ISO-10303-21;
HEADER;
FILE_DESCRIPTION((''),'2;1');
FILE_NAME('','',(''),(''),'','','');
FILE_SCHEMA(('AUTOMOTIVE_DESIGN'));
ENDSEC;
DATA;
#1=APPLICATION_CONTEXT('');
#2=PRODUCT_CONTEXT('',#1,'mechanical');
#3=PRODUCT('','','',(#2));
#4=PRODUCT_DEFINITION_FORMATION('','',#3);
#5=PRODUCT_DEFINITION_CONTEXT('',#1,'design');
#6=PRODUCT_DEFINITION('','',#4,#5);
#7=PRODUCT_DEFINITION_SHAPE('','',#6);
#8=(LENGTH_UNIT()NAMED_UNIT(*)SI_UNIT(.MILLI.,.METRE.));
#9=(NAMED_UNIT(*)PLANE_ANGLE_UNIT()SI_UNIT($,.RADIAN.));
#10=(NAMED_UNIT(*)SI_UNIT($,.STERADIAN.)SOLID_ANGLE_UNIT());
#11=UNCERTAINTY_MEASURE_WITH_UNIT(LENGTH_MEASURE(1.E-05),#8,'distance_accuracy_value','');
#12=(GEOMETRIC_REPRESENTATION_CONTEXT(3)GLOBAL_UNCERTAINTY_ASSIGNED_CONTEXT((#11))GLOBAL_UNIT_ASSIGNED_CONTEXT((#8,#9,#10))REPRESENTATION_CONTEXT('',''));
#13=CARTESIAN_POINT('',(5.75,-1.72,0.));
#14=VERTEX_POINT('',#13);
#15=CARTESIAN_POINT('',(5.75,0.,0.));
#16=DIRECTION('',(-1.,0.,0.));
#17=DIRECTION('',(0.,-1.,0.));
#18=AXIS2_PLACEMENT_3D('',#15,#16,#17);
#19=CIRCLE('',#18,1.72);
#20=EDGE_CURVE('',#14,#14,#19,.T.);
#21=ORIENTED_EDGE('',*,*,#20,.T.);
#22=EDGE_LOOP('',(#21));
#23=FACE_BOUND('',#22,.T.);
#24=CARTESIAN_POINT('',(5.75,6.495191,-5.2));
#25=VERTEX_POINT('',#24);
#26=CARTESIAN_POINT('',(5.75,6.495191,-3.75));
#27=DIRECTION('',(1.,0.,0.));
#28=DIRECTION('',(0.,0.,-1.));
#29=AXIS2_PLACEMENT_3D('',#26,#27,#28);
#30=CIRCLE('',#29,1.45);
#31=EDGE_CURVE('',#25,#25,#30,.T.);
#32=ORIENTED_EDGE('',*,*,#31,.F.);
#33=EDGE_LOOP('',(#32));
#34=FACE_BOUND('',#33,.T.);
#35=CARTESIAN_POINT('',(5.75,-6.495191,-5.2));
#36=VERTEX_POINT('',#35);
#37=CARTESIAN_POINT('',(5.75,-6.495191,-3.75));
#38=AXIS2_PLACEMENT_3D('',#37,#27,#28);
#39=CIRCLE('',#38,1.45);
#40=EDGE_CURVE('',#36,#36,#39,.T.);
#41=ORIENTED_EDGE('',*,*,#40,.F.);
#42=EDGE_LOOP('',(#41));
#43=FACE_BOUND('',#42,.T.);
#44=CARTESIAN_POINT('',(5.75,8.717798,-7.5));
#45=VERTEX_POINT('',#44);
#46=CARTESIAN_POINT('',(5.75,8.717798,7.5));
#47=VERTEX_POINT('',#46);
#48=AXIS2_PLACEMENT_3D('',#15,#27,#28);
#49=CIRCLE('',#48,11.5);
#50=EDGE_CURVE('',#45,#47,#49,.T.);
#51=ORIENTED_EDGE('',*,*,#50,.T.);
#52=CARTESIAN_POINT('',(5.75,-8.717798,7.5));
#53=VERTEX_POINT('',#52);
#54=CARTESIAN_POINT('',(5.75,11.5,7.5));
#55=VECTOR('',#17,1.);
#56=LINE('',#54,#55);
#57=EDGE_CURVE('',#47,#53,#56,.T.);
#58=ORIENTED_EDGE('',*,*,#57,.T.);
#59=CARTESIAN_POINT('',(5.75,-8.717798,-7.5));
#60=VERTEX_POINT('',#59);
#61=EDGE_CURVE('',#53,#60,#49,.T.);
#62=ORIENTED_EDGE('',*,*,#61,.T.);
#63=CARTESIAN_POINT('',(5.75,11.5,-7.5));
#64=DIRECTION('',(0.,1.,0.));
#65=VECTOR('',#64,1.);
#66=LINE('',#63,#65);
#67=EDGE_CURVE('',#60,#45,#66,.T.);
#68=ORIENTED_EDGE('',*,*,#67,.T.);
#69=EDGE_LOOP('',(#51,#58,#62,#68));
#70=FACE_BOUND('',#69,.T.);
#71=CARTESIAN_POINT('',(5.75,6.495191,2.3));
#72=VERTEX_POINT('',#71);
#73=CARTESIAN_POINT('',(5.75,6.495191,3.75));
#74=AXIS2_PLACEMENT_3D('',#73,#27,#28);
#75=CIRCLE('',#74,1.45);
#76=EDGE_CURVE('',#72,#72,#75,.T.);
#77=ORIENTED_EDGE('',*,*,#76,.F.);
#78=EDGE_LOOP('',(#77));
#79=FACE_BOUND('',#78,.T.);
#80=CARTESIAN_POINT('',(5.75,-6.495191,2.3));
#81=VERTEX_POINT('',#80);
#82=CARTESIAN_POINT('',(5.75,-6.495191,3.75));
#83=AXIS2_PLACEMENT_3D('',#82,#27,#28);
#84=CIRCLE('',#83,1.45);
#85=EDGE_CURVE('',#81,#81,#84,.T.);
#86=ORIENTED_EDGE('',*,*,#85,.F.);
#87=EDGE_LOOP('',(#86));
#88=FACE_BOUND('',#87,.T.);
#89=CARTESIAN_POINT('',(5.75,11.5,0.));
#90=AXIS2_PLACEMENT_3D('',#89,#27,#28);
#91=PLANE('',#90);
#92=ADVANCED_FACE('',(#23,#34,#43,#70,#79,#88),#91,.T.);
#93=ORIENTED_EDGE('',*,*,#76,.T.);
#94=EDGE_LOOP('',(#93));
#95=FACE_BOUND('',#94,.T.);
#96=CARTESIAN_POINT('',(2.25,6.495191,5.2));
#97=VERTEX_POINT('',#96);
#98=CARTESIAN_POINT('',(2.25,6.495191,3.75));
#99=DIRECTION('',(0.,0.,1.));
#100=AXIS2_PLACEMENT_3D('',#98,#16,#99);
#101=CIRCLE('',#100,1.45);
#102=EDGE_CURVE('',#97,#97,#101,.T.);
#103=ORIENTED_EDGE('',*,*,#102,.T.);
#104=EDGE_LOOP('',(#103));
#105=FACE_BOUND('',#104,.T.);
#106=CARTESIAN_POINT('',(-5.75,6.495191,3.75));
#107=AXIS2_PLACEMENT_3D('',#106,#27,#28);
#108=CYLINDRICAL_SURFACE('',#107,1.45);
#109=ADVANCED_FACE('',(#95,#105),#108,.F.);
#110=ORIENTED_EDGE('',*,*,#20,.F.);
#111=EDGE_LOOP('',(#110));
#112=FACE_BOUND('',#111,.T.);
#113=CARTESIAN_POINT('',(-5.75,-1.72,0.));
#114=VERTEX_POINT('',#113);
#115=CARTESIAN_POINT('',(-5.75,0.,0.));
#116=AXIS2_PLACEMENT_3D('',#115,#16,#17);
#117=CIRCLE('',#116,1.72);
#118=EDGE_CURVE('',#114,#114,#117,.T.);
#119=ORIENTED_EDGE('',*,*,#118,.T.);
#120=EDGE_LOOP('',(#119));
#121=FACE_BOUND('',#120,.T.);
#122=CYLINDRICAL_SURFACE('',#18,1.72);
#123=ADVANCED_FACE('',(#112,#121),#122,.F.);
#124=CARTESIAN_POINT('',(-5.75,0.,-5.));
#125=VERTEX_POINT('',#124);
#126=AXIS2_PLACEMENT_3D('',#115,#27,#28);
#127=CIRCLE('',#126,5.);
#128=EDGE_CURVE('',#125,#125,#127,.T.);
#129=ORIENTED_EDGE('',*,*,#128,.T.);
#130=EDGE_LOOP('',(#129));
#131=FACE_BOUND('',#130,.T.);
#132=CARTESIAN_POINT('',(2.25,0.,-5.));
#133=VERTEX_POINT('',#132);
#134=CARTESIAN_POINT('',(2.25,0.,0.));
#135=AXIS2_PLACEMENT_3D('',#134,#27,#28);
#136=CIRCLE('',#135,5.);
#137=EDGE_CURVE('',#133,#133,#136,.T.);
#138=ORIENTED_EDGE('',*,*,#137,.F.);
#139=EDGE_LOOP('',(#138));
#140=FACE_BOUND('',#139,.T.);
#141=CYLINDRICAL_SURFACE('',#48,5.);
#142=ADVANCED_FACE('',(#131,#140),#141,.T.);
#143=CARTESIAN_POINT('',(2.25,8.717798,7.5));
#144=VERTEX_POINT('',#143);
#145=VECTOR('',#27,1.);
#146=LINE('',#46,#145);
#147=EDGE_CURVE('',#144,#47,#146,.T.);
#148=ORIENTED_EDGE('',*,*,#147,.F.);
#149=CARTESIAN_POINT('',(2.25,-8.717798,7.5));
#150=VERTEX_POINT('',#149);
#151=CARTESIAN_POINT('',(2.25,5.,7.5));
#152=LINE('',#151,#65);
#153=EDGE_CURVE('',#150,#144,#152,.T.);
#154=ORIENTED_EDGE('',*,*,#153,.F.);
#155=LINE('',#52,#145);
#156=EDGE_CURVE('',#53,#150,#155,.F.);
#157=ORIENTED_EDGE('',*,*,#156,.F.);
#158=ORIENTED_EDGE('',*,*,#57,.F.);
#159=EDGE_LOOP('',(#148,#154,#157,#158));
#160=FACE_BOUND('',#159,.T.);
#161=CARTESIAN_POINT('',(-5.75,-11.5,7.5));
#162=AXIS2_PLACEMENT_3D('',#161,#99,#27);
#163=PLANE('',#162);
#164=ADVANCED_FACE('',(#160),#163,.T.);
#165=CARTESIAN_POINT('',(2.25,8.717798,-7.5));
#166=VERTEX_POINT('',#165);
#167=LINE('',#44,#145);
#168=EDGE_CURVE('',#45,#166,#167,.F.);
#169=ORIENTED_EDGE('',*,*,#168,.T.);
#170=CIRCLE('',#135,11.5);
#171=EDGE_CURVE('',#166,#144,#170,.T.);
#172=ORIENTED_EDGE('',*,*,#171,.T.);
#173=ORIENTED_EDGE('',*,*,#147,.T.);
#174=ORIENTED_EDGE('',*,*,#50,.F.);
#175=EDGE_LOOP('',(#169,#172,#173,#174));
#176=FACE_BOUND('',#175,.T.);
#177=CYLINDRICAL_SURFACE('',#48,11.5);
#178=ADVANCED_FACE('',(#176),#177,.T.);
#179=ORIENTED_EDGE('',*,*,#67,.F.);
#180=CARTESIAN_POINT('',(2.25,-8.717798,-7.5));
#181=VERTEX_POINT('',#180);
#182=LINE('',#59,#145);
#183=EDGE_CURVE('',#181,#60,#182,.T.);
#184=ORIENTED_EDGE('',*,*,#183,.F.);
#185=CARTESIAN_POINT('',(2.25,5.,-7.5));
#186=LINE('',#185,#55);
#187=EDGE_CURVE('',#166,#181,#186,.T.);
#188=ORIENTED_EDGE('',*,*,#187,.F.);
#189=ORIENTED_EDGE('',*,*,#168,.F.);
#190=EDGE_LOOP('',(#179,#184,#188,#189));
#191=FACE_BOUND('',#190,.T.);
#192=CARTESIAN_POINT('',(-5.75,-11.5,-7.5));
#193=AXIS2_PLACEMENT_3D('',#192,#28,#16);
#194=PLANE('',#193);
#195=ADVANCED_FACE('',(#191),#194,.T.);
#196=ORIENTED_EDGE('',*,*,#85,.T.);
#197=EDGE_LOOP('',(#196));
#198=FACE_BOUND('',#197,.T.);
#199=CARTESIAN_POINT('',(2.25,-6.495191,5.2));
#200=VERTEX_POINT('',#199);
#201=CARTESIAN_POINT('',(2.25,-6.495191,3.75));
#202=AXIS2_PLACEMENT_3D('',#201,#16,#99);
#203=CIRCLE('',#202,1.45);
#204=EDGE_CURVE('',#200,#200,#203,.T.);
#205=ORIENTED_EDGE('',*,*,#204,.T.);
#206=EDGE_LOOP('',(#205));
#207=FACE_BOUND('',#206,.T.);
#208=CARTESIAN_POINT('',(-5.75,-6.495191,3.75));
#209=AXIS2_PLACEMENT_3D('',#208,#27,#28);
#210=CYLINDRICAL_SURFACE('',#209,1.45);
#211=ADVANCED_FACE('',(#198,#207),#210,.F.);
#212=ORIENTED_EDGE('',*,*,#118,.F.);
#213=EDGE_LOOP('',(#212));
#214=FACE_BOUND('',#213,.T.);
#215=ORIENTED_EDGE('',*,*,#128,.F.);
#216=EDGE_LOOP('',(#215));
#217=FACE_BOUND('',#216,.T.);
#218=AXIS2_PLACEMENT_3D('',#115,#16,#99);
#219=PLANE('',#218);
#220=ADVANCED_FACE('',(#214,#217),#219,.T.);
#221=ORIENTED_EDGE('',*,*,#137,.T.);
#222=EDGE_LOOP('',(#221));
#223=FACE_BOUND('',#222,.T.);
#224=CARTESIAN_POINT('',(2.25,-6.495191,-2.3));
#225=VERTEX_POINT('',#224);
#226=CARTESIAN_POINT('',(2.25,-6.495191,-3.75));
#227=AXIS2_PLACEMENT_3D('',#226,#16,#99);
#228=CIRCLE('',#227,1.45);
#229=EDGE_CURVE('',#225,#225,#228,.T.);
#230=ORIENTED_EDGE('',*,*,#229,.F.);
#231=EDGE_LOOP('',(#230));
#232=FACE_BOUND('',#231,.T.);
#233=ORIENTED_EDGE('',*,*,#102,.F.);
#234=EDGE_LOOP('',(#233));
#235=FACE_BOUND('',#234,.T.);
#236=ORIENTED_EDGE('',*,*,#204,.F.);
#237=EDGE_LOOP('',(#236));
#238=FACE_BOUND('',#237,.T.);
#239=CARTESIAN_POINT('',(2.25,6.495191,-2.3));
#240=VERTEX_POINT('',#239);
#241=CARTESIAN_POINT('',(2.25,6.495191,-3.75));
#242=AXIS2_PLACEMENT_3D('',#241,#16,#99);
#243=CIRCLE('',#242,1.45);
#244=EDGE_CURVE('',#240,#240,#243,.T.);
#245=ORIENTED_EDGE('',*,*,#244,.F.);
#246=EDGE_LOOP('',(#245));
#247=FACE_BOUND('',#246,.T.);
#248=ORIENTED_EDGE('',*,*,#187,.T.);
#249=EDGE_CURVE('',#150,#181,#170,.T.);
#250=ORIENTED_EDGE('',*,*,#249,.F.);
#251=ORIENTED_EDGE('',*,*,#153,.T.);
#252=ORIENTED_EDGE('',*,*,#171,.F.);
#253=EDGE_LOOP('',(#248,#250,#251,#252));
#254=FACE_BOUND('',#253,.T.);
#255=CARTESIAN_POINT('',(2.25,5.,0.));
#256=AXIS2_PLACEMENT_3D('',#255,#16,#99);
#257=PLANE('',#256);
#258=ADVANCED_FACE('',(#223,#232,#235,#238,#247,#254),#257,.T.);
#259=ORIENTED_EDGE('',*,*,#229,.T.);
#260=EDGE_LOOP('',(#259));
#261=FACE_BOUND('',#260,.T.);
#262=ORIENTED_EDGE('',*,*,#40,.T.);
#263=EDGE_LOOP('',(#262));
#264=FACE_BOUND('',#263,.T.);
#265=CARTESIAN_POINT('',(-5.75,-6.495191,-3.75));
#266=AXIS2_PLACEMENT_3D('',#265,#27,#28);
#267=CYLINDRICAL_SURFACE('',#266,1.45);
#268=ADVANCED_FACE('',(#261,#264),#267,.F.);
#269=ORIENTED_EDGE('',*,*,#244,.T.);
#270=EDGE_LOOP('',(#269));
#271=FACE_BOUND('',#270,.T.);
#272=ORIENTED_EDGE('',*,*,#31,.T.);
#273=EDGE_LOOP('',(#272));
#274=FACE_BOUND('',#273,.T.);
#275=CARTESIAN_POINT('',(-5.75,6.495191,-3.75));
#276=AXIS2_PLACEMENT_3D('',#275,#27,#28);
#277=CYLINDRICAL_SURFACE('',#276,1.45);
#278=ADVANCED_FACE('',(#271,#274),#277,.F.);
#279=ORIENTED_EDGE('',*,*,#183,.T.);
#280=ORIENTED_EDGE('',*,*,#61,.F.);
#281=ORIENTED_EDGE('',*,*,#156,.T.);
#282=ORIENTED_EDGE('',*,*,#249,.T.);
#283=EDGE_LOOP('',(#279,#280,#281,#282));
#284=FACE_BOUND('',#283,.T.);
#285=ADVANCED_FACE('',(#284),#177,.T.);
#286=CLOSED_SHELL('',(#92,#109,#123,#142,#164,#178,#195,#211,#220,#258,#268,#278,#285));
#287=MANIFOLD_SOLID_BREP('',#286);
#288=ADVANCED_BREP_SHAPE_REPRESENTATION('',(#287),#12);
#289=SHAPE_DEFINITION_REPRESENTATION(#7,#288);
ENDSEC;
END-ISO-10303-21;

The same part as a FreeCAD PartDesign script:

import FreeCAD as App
import Part
import Sketcher

V = App.Vector

doc = App.newDocument("Part")
body = doc.addObject("PartDesign::Body", "Body")

# Sketch on XY plane
sketch1 = doc.addObject("Sketcher::SketchObject", "Sketch")
body.addObject(sketch1)
sketch1.AttachmentSupport = (doc.XY_Plane, [""])
sketch1.MapMode = "FlatFace"
sketch1.addGeometry(Part.LineSegment(V(-5.8, 5, 0), V(-5.8, 0, 0)), False)
sketch1.addGeometry(Part.LineSegment(V(-5.8, 0, 0), V(5.8, 0, 0)), False)
sketch1.addGeometry(Part.LineSegment(V(5.8, 0, 0), V(5.8, 11.5, 0)), False)
sketch1.addGeometry(Part.LineSegment(V(5.8, 11.5, 0), V(2.2, 11.5, 0)), False)
sketch1.addGeometry(Part.LineSegment(V(2.2, 11.5, 0), V(2.2, 5, 0)), False)
sketch1.addGeometry(Part.LineSegment(V(2.2, 5, 0), V(-5.8, 5, 0)), False)
sketch1.addConstraint(Sketcher.Constraint("Coincident", 0, 2, 1, 1))
sketch1.addConstraint(Sketcher.Constraint("Coincident", 1, 2, 2, 1))
sketch1.addConstraint(Sketcher.Constraint("Coincident", 2, 2, 3, 1))
sketch1.addConstraint(Sketcher.Constraint("Coincident", 3, 2, 4, 1))
sketch1.addConstraint(Sketcher.Constraint("Coincident", 4, 2, 5, 1))
sketch1.addConstraint(Sketcher.Constraint("Coincident", 5, 2, 0, 1))
sketch1.addConstraint(Sketcher.Constraint("Vertical", 0))
sketch1.addConstraint(Sketcher.Constraint("Horizontal", 1))
sketch1.addConstraint(Sketcher.Constraint("Vertical", 2))
sketch1.addConstraint(Sketcher.Constraint("Horizontal", 3))
sketch1.addConstraint(Sketcher.Constraint("Vertical", 4))
sketch1.addConstraint(Sketcher.Constraint("Horizontal", 5))
sketch1.addConstraint(Sketcher.Constraint("Symmetric", 0, 2, 1, 2, -1, 1))
sketch1.addConstraint(Sketcher.Constraint("Equal", 1, 2))
sketch1.addConstraint(Sketcher.Constraint("DistanceX", 5, 2, 5, 1, 8.0))
sketch1.addConstraint(Sketcher.Constraint("DistanceY", 0, 2, 0, 1, 5.0))
sketch1.addConstraint(Sketcher.Constraint("DistanceX", 1, 1, 1, 2, 11.5))
revolution = doc.addObject("PartDesign::Revolution", "Revolution")
body.addObject(revolution)
revolution.Profile = sketch1
revolution.ReferenceAxis = (sketch1, ["H_Axis"])
revolution.Angle = 360

# Sketch on YZ plane
sketch2 = doc.addObject("Sketcher::SketchObject", "Sketch001")
body.addObject(sketch2)
sketch2.AttachmentSupport = (doc.YZ_Plane, [""])
sketch2.MapMode = "FlatFace"
sketch2.AttachmentOffset = App.Placement(V(0, 0, -5.75), App.Rotation())
sketch2.addGeometry(Part.Circle(V(0, 0, 0), V(0, 0, 1), 1.7), False)
sketch2.addConstraint(Sketcher.Constraint("Coincident", 0, 3, -1, 1))
sketch2.addConstraint(Sketcher.Constraint("Diameter", 0, 3.44))
pocket1 = doc.addObject("PartDesign::Pocket", "Pocket")
body.addObject(pocket1)
pocket1.Profile = sketch2
pocket1.Type = "ThroughAll"
pocket1.Reversed = True

# Sketch on YZ plane
sketch3 = doc.addObject("Sketcher::SketchObject", "Sketch002")
body.addObject(sketch3)
sketch3.AttachmentSupport = (doc.YZ_Plane, [""])
sketch3.MapMode = "FlatFace"
sketch3.AttachmentOffset = App.Placement(V(0, 0, 5.75), App.Rotation())
sketch3.addGeometry(Part.Circle(V(6.5, 3.8, 0), V(0, 0, 1), 1.4), False)
sketch3.addGeometry(Part.Circle(V(6.5, -3.8, 0), V(0, 0, 1), 1.4), False)
sketch3.addGeometry(Part.Circle(V(-6.5, 3.8, 0), V(0, 0, 1), 1.4), False)
sketch3.addGeometry(Part.Circle(V(-6.5, -3.8, 0), V(0, 0, 1), 1.4), False)
sketch3.addConstraint(Sketcher.Constraint("Equal", 0, 1))
sketch3.addConstraint(Sketcher.Constraint("Equal", 1, 2))
sketch3.addConstraint(Sketcher.Constraint("Equal", 2, 3))
sketch3.addConstraint(Sketcher.Constraint("Symmetric", 1, 3, 2, 3, -1, 1))
sketch3.addConstraint(Sketcher.Constraint("Symmetric", 0, 3, 3, 3, -1, 1))
sketch3.addConstraint(Sketcher.Constraint("Symmetric", 0, 3, 2, 3, -2))
sketch3.addConstraint(Sketcher.Constraint("Diameter", 0, 2.9))
sketch3.addConstraint(Sketcher.Constraint("DistanceY", 1, 3, 0, 3, 7.5))
sketch3.addConstraint(Sketcher.Constraint("DistanceX", -1, 1, 0, 3, 6.495191))
pocket2 = doc.addObject("PartDesign::Pocket", "Pocket001")
body.addObject(pocket2)
pocket2.Profile = sketch3
pocket2.Type = "ThroughAll"

# Sketch on YZ plane
sketch4 = doc.addObject("Sketcher::SketchObject", "Sketch003")
body.addObject(sketch4)
sketch4.AttachmentSupport = (doc.YZ_Plane, [""])
sketch4.MapMode = "FlatFace"
sketch4.AttachmentOffset = App.Placement(V(0, 0, 5.75), App.Rotation())
sketch4.addGeometry(Part.LineSegment(V(16, 16, 0), V(-16, 16, 0)), False)
sketch4.addGeometry(Part.LineSegment(V(-16, 16, 0), V(-16, -16, 0)), False)
sketch4.addGeometry(Part.LineSegment(V(-16, -16, 0), V(16, -16, 0)), False)
sketch4.addGeometry(Part.LineSegment(V(16, -16, 0), V(16, 16, 0)), False)
sketch4.addGeometry(Part.LineSegment(V(-12, -8, 0), V(-12, 8, 0)), False)
sketch4.addGeometry(Part.LineSegment(V(-12, 8, 0), V(12, 8, 0)), False)
sketch4.addGeometry(Part.LineSegment(V(12, 8, 0), V(12, -8, 0)), False)
sketch4.addGeometry(Part.LineSegment(V(12, -8, 0), V(-12, -8, 0)), False)
sketch4.addConstraint(Sketcher.Constraint("Coincident", 0, 2, 1, 1))
sketch4.addConstraint(Sketcher.Constraint("Coincident", 1, 2, 2, 1))
sketch4.addConstraint(Sketcher.Constraint("Coincident", 2, 2, 3, 1))
sketch4.addConstraint(Sketcher.Constraint("Coincident", 3, 2, 0, 1))
sketch4.addConstraint(Sketcher.Constraint("Coincident", 4, 2, 5, 1))
sketch4.addConstraint(Sketcher.Constraint("Coincident", 5, 2, 6, 1))
sketch4.addConstraint(Sketcher.Constraint("Coincident", 6, 2, 7, 1))
sketch4.addConstraint(Sketcher.Constraint("Coincident", 7, 2, 4, 1))
sketch4.addConstraint(Sketcher.Constraint("Horizontal", 0))
sketch4.addConstraint(Sketcher.Constraint("Vertical", 1))
sketch4.addConstraint(Sketcher.Constraint("Horizontal", 2))
sketch4.addConstraint(Sketcher.Constraint("Vertical", 3))
sketch4.addConstraint(Sketcher.Constraint("Vertical", 4))
sketch4.addConstraint(Sketcher.Constraint("Horizontal", 5))
sketch4.addConstraint(Sketcher.Constraint("Vertical", 6))
sketch4.addConstraint(Sketcher.Constraint("Horizontal", 7))
sketch4.addConstraint(Sketcher.Constraint("Symmetric", 0, 2, 2, 2, -1, 1))
sketch4.addConstraint(Sketcher.Constraint("Symmetric", 4, 2, 6, 2, -1, 1))
sketch4.addConstraint(Sketcher.Constraint("Equal", 2, 1))
sketch4.addConstraint(Sketcher.Constraint("DistanceX", 5, 1, 5, 2, 23.0))
sketch4.addConstraint(Sketcher.Constraint("DistanceY", 4, 1, 4, 2, 15.0))
sketch4.addConstraint(Sketcher.Constraint("DistanceX", 0, 2, 0, 1, 31.9))
pocket3 = doc.addObject("PartDesign::Pocket", "Pocket002")
body.addObject(pocket3)
pocket3.Profile = sketch4
pocket3.Type = "ThroughAll"

doc.recompute()
